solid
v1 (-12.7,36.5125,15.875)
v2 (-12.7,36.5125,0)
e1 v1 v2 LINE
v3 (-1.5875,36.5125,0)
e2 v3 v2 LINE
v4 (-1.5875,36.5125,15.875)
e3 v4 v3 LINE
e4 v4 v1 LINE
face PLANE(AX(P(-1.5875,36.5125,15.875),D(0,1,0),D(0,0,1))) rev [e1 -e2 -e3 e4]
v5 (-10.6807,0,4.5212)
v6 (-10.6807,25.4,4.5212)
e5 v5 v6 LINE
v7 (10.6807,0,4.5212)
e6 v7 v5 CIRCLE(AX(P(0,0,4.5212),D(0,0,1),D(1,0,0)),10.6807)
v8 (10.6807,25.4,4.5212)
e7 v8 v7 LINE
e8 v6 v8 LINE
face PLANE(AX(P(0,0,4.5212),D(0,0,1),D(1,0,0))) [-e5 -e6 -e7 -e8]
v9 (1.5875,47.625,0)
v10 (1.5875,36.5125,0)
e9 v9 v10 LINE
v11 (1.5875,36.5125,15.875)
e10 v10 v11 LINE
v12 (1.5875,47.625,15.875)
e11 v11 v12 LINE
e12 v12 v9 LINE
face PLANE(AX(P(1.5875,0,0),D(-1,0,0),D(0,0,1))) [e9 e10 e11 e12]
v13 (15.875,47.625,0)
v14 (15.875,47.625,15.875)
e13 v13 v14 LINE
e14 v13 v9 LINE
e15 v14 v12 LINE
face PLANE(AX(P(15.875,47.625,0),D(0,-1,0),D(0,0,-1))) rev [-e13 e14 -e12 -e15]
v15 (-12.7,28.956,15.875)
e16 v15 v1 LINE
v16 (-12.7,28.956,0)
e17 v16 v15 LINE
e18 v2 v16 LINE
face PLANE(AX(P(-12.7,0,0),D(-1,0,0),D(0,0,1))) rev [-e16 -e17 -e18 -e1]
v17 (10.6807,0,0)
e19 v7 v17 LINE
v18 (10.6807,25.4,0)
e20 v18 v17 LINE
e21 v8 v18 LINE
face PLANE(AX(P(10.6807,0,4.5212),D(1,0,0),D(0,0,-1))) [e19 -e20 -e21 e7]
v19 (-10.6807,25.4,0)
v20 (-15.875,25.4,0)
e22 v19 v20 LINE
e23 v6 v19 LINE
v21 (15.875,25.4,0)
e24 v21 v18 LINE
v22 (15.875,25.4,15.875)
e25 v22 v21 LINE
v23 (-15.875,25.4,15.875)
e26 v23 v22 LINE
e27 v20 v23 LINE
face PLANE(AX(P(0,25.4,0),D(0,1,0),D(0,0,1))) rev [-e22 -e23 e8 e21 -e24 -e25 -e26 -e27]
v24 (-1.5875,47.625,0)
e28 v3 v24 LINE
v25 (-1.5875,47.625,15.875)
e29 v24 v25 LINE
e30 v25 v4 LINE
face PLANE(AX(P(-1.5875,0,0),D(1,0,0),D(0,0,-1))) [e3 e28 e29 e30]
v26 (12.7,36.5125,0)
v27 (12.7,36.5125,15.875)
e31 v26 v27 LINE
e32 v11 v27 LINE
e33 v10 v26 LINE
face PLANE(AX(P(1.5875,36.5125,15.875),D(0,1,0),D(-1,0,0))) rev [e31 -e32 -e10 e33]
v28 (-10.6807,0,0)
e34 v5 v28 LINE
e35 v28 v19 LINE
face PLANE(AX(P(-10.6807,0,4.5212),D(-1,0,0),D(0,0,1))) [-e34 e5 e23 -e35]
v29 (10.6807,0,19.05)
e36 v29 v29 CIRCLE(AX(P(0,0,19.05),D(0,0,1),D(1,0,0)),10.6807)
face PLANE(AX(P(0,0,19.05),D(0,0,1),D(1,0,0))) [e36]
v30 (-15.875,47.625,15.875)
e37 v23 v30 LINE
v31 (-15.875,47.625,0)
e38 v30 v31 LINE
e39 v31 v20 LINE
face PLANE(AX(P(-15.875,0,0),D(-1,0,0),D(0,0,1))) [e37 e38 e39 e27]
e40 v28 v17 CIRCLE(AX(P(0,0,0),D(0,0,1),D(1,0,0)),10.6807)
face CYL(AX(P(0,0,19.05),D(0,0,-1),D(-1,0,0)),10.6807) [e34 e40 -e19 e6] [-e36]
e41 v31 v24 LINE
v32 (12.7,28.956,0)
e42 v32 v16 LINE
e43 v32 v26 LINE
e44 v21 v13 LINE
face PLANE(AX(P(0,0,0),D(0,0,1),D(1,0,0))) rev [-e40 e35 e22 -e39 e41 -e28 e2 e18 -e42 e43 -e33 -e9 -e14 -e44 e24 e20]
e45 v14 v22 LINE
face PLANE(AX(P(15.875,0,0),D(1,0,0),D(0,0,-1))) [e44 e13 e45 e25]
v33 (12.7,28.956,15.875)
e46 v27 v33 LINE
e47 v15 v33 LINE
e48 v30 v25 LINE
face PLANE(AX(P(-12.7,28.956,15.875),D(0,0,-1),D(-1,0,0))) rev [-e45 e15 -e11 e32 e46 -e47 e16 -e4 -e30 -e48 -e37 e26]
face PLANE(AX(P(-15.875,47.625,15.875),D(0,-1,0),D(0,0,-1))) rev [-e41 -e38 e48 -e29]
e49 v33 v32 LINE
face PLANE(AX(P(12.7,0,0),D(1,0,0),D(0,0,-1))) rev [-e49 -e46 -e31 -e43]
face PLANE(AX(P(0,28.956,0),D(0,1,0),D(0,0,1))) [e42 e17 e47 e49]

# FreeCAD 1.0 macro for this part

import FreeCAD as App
import Part
import Sketcher
Q = App.Units.Quantity

doc = App.newDocument("Part")
body = doc.addObject("PartDesign::Body", "Body")

# Sketch on XY plane
sketch1 = doc.addObject("Sketcher::SketchObject", "Sketch")
body.addObject(sketch1)
sketch1.AttachmentSupport = (doc.XY_Plane, [""])
sketch1.MapMode = "FlatFace"
sketch1.addGeometry(Part.Circle(App.Vector(0, 0, 0), App.Vector(0, 0, 1), 11), False)
sketch1.addConstraint([
    Sketcher.Constraint("Coincident", 0, 3, -1, 1),
    Sketcher.Constraint("Diameter", 0, Q("0.841 in")),
])
pad1 = doc.addObject("PartDesign::Pad", "Pad")
body.addObject(pad1)
pad1.Profile = sketch1
pad1.Length = Q("0.75 in")

# Sketch on XY plane
sketch2 = doc.addObject("Sketcher::SketchObject", "Sketch001")
body.addObject(sketch2)
sketch2.AttachmentSupport = (doc.XY_Plane, [""])
sketch2.MapMode = "FlatFace"
sketch2.addGeometry([
    Part.LineSegment(App.Vector(11, 25, 0), App.Vector(11, 0, 0)),
    Part.LineSegment(App.Vector(11, 0, 0), App.Vector(-11, 0, 0)),
    Part.LineSegment(App.Vector(-11, 0, 0), App.Vector(-11, 25, 0)),
    Part.LineSegment(App.Vector(-11, 25, 0), App.Vector(11, 25, 0)),
], False)
sketch2.addConstraint([
    Sketcher.Constraint("Coincident", 0, 2, 1, 1),
    Sketcher.Constraint("Coincident", 1, 2, 2, 1),
    Sketcher.Constraint("Coincident", 2, 2, 3, 1),
    Sketcher.Constraint("Coincident", 3, 2, 0, 1),
    Sketcher.Constraint("Vertical", 0),
    Sketcher.Constraint("Horizontal", 1),
    Sketcher.Constraint("Vertical", 2),
    Sketcher.Constraint("Horizontal", 3),
    Sketcher.Constraint("Symmetric", 0, 2, 1, 2, -1, 1),
    Sketcher.Constraint("DistanceY", 0, 2, 0, 1, Q("1 in")),
    Sketcher.Constraint("DistanceX", 1, 2, 1, 1, Q("0.841 in")),
])
pad2 = doc.addObject("PartDesign::Pad", "Pad001")
body.addObject(pad2)
pad2.Profile = sketch2
pad2.Length = Q("0.178 in")

# Sketch on XZ plane
sketch3 = doc.addObject("Sketcher::SketchObject", "Sketch002")
body.addObject(sketch3)
sketch3.AttachmentSupport = (doc.XZ_Plane, [""])
sketch3.MapMode = "FlatFace"
sketch3.AttachmentOffset = App.Placement(App.Vector(0, 0, -1 * 25.4), App.Rotation())
sketch3.addGeometry([
    Part.LineSegment(App.Vector(13, 0, 0), App.Vector(-13, 0, 0)),
    Part.LineSegment(App.Vector(-13, 0, 0), App.Vector(-13, 16, 0)),
    Part.LineSegment(App.Vector(-13, 16, 0), App.Vector(13, 16, 0)),
    Part.LineSegment(App.Vector(13, 16, 0), App.Vector(13, 0, 0)),
], False)
sketch3.addConstraint([
    Sketcher.Constraint("Coincident", 0, 2, 1, 1),
    Sketcher.Constraint("Coincident", 1, 2, 2, 1),
    Sketcher.Constraint("Coincident", 2, 2, 3, 1),
    Sketcher.Constraint("Coincident", 3, 2, 0, 1),
    Sketcher.Constraint("Horizontal", 0),
    Sketcher.Constraint("Vertical", 1),
    Sketcher.Constraint("Horizontal", 2),
    Sketcher.Constraint("Vertical", 3),
    Sketcher.Constraint("Symmetric", 0, 2, 3, 2, -1, 1),
    Sketcher.Constraint("DistanceX", 0, 2, 0, 1, Q("1 in")),
    Sketcher.Constraint("DistanceY", 1, 1, 1, 2, Q("0.625 in")),
])
pad3 = doc.addObject("PartDesign::Pad", "Pad002")
body.addObject(pad3)
pad3.Profile = sketch3
pad3.Length = Q("0.14 in")
pad3.Reversed = True

# Sketch on YZ plane
sketch4 = doc.addObject("Sketcher::SketchObject", "Sketch003")
body.addObject(sketch4)
sketch4.AttachmentSupport = (doc.YZ_Plane, [""])
sketch4.MapMode = "FlatFace"
sketch4.AttachmentOffset = App.Placement(App.Vector(0, 0, 0.5 * 25.4), App.Rotation())
sketch4.addGeometry([
    Part.LineSegment(App.Vector(48, 16, 0), App.Vector(25, 16, 0)),
    Part.LineSegment(App.Vector(25, 16, 0), App.Vector(25, 0, 0)),
    Part.LineSegment(App.Vector(25, 0, 0), App.Vector(48, 0, 0)),
    Part.LineSegment(App.Vector(48, 0, 0), App.Vector(48, 16, 0)),
], False)
sketch4.addConstraint([
    Sketcher.Constraint("Coincident", 0, 2, 1, 1),
    Sketcher.Constraint("Coincident", 1, 2, 2, 1),
    Sketcher.Constraint("Coincident", 2, 2, 3, 1),
    Sketcher.Constraint("Coincident", 3, 2, 0, 1),
    Sketcher.Constraint("Horizontal", 0),
    Sketcher.Constraint("Vertical", 1),
    Sketcher.Constraint("Horizontal", 2),
    Sketcher.Constraint("Vertical", 3),
    Sketcher.Constraint("PointOnObject", 1, 2, -1),
    Sketcher.Constraint("DistanceX", -1, 1, 0, 2, Q("1 in")),
    Sketcher.Constraint("DistanceX", 0, 2, 0, 1, Q("0.875 in")),
    Sketcher.Constraint("DistanceY", 1, 2, 1, 1, Q("0.625 in")),
])
pad4 = doc.addObject("PartDesign::Pad", "Pad003")
body.addObject(pad4)
pad4.Profile = sketch4
pad4.Length = Q("0.125 in")

# Sketch on YZ plane
sketch5 = doc.addObject("Sketcher::SketchObject", "Sketch004")
body.addObject(sketch5)
sketch5.AttachmentSupport = (doc.YZ_Plane, [""])
sketch5.MapMode = "FlatFace"
sketch5.AttachmentOffset = App.Placement(App.Vector(0, 0, -0.5 * 25.4), App.Rotation())
sketch5.addGeometry([
    Part.LineSegment(App.Vector(48, 0, 0), App.Vector(25, 0, 0)),
    Part.LineSegment(App.Vector(25, 0, 0), App.Vector(25, 16, 0)),
    Part.LineSegment(App.Vector(25, 16, 0), App.Vector(48, 16, 0)),
    Part.LineSegment(App.Vector(48, 16, 0), App.Vector(48, 0, 0)),
], False)
sketch5.addConstraint([
    Sketcher.Constraint("Coincident", 0, 2, 1, 1),
    Sketcher.Constraint("Coincident", 1, 2, 2, 1),
    Sketcher.Constraint("Coincident", 2, 2, 3, 1),
    Sketcher.Constraint("Coincident", 3, 2, 0, 1),
    Sketcher.Constraint("Horizontal", 0),
    Sketcher.Constraint("Vertical", 1),
    Sketcher.Constraint("Horizontal", 2),
    Sketcher.Constraint("Vertical", 3),
    Sketcher.Constraint("PointOnObject", 0, 2, -1),
    Sketcher.Constraint("DistanceX", -1, 1, 0, 2, Q("1 in")),
    Sketcher.Constraint("DistanceX", 0, 2, 0, 1, Q("0.875 in")),
    Sketcher.Constraint("DistanceY", 1, 1, 1, 2, Q("0.625 in")),
])
pad5 = doc.addObject("PartDesign::Pad", "Pad004")
body.addObject(pad5)
pad5.Profile = sketch5
pad5.Length = Q("0.125 in")
pad5.Reversed = True

# Sketch on YZ plane
sketch6 = doc.addObject("Sketcher::SketchObject", "Sketch005")
body.addObject(sketch6)
sketch6.AttachmentSupport = (doc.YZ_Plane, [""])
sketch6.MapMode = "FlatFace"
sketch6.AttachmentOffset = App.Placement(App.Vector(0, 0, -0.5 * 25.4), App.Rotation())
sketch6.addGeometry([
    Part.LineSegment(App.Vector(48, 16, 0), App.Vector(37, 16, 0)),
    Part.LineSegment(App.Vector(37, 16, 0), App.Vector(37, 0, 0)),
    Part.LineSegment(App.Vector(37, 0, 0), App.Vector(48, 0, 0)),
    Part.LineSegment(App.Vector(48, 0, 0), App.Vector(48, 16, 0)),
], False)
sketch6.addConstraint([
    Sketcher.Constraint("Coincident", 0, 2, 1, 1),
    Sketcher.Constraint("Coincident", 1, 2, 2, 1),
    Sketcher.Constraint("Coincident", 2, 2, 3, 1),
    Sketcher.Constraint("Coincident", 3, 2, 0, 1),
    Sketcher.Constraint("Horizontal", 0),
    Sketcher.Constraint("Vertical", 1),
    Sketcher.Constraint("Horizontal", 2),
    Sketcher.Constraint("Vertical", 3),
    Sketcher.Constraint("PointOnObject", 1, 2, -1),
    Sketcher.Constraint("DistanceX", 0, 2, 0, 1, Q("0.4375 in")),
    Sketcher.Constraint("DistanceY", 1, 2, 1, 1, Q("0.625 in")),
    Sketcher.Constraint("DistanceX", -1, 1, 0, 2, Q("1.4375 in")),
])
pad6 = doc.addObject("PartDesign::Pad", "Pad005")
body.addObject(pad6)
pad6.Profile = sketch6
pad6.Length = Q("0.4375 in")

# Sketch on YZ plane
sketch7 = doc.addObject("Sketcher::SketchObject", "Sketch006")
body.addObject(sketch7)
sketch7.AttachmentSupport = (doc.YZ_Plane, [""])
sketch7.MapMode = "FlatFace"
sketch7.AttachmentOffset = App.Placement(App.Vector(0, 0, 0.5 * 25.4), App.Rotation())
sketch7.addGeometry([
    Part.LineSegment(App.Vector(48, 0, 0), App.Vector(37, 0, 0)),
    Part.LineSegment(App.Vector(37, 0, 0), App.Vector(37, 16, 0)),
    Part.LineSegment(App.Vector(37, 16, 0), App.Vector(48, 16, 0)),
    Part.LineSegment(App.Vector(48, 16, 0), App.Vector(48, 0, 0)),
], False)
sketch7.addConstraint([
    Sketcher.Constraint("Coincident", 0, 2, 1, 1),
    Sketcher.Constraint("Coincident", 1, 2, 2, 1),
    Sketcher.Constraint("Coincident", 2, 2, 3, 1),
    Sketcher.Constraint("Coincident", 3, 2, 0, 1),
    Sketcher.Constraint("Horizontal", 0),
    Sketcher.Constraint("Vertical", 1),
    Sketcher.Constraint("Horizontal", 2),
    Sketcher.Constraint("Vertical", 3),
    Sketcher.Constraint("PointOnObject", 0, 2, -1),
    Sketcher.Constraint("DistanceX", 0, 2, 0, 1, Q("0.4375 in")),
    Sketcher.Constraint("DistanceY", 1, 1, 1, 2, Q("0.625 in")),
    Sketcher.Constraint("DistanceX", -1, 1, 0, 2, Q("1.4375 in")),
])
pad7 = doc.addObject("PartDesign::Pad", "Pad006")
body.addObject(pad7)
pad7.Profile = sketch7
pad7.Length = Q("0.4375 in")
pad7.Reversed = True

doc.recompute()
